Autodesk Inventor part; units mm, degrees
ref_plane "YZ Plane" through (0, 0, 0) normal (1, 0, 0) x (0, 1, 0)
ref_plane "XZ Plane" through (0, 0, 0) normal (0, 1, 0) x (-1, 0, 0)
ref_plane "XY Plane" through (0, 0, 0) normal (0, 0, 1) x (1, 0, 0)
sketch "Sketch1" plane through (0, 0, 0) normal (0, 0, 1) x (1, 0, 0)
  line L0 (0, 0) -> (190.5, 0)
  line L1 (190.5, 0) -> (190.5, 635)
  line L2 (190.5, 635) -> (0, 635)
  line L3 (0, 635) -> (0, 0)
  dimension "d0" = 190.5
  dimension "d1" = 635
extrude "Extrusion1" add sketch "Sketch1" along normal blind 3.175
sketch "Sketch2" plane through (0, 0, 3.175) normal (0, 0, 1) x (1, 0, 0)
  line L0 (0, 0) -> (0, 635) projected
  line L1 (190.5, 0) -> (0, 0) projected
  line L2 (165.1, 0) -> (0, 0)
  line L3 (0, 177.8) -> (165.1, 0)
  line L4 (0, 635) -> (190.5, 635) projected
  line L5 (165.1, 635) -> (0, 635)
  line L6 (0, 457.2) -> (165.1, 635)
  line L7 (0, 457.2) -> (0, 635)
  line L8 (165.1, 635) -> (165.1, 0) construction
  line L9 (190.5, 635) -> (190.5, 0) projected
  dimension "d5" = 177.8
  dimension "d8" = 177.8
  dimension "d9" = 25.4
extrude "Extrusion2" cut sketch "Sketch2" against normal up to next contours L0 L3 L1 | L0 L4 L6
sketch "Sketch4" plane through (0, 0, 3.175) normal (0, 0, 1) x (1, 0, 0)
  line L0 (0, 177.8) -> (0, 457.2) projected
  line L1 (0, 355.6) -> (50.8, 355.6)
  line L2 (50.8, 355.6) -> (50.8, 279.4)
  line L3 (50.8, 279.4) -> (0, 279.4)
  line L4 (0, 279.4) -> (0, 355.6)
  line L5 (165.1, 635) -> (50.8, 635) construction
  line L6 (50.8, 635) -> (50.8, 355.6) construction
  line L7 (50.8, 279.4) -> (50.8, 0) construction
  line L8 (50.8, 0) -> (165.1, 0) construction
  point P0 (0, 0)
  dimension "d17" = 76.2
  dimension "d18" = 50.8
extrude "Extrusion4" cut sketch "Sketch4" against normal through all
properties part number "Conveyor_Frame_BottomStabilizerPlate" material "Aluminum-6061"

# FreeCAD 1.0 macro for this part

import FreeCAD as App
import Part
import Sketcher
Q = App.Units.Quantity


def add_polygon(sketch, points):
    """Adds a closed chain of lines whose ends are joined by coincident constraints."""
    first, n = sketch.GeometryCount, len(points)
    for a, b in zip(points, points[1:] + points[:1]):
        sketch.addGeometry(Part.LineSegment(App.Vector(*a, 0), App.Vector(*b, 0)), False)
    for i in range(n):
        sketch.addConstraint(Sketcher.Constraint("Coincident", first + i, 2, first + (i + 1) % n, 1))

doc = App.newDocument("Part")
body = doc.addObject("PartDesign::Body", "Body")

sketch1 = body.newObject("Sketcher::SketchObject", "Sketch")
sketch1.AttachmentSupport = (doc.getObject("XY_Plane"), [""])
sketch1.MapMode = "FlatFace"
add_polygon(sketch1, [(0, 635), (0, 0), (190, 0), (190, 635)])
sketch1.addConstraint([
    Sketcher.Constraint("Vertical", 0),
    Sketcher.Constraint("Horizontal", 1),
    Sketcher.Constraint("Vertical", 2),
    Sketcher.Constraint("Horizontal", 3),
    Sketcher.Constraint("Coincident", 0, 2, -1, 1),
    Sketcher.Constraint("DistanceY", 0, 2, 0, 1, Q("25 in")),
    Sketcher.Constraint("DistanceX", 1, 1, 1, 2, Q("7.5 in")),
])
pad1 = body.newObject("PartDesign::Pad", "Pad")
pad1.Profile = sketch1
pad1.Length = Q("0.125 in")

sketch2 = body.newObject("Sketcher::SketchObject", "Sketch001")
sketch2.AttachmentSupport = (doc.getObject("XY_Plane"), [""])
sketch2.MapMode = "FlatFace"
sketch2.AttachmentOffset = App.Placement(App.Vector(0, 0, 0.125 * 25.4), App.Rotation())
add_polygon(sketch2, [(0, 178), (0, 0), (165, 0)])
add_polygon(sketch2, [(0, 635), (0, 457), (165, 635)])
sketch2.addConstraint([
    Sketcher.Constraint("Vertical", 0),
    Sketcher.Constraint("Horizontal", 1),
    Sketcher.Constraint("Vertical", 3),
    Sketcher.Constraint("Horizontal", 5),
    Sketcher.Constraint("Coincident", 0, 2, -1, 1),
    Sketcher.Constraint("PointOnObject", 3, 2, -2),
    Sketcher.Constraint("Vertical", 1, 2, 4, 2),
    Sketcher.Constraint("Equal", 0, 3),
    Sketcher.Constraint("DistanceY", 0, 2, 0, 1, Q("7 in")),
    Sketcher.Constraint("DistanceX", 1, 1, 1, 2, Q("6.5 in")),
    Sketcher.Constraint("DistanceY", -1, 1, 3, 2, Q("18 in")),
])
pocket1 = body.newObject("PartDesign::Pocket", "Pocket")
pocket1.Profile = sketch2
pocket1.Type = "UpToFirst"

sketch3 = body.newObject("Sketcher::SketchObject", "Sketch002")
sketch3.AttachmentSupport = (doc.getObject("XY_Plane"), [""])
sketch3.MapMode = "FlatFace"
sketch3.AttachmentOffset = App.Placement(App.Vector(0, 0, 0.125 * 25.4), App.Rotation())
add_polygon(sketch3, [(0, 356), (0, 279), (51, 279), (51, 356)])
sketch3.addConstraint([
    Sketcher.Constraint("Vertical", 0),
    Sketcher.Constraint("Horizontal", 1),
    Sketcher.Constraint("Vertical", 2),
    Sketcher.Constraint("Horizontal", 3),
    Sketcher.Constraint("PointOnObject", 0, 2, -2),
    Sketcher.Constraint("DistanceX", 1, 1, 1, 2, Q("2 in")),
    Sketcher.Constraint("DistanceY", 0, 2, 0, 1, Q("3 in")),
    Sketcher.Constraint("DistanceY", -1, 1, 0, 2, Q("11 in")),
])
pocket2 = body.newObject("PartDesign::Pocket", "Pocket001")
pocket2.Profile = sketch3
pocket2.Type = "ThroughAll"

doc.recompute()
